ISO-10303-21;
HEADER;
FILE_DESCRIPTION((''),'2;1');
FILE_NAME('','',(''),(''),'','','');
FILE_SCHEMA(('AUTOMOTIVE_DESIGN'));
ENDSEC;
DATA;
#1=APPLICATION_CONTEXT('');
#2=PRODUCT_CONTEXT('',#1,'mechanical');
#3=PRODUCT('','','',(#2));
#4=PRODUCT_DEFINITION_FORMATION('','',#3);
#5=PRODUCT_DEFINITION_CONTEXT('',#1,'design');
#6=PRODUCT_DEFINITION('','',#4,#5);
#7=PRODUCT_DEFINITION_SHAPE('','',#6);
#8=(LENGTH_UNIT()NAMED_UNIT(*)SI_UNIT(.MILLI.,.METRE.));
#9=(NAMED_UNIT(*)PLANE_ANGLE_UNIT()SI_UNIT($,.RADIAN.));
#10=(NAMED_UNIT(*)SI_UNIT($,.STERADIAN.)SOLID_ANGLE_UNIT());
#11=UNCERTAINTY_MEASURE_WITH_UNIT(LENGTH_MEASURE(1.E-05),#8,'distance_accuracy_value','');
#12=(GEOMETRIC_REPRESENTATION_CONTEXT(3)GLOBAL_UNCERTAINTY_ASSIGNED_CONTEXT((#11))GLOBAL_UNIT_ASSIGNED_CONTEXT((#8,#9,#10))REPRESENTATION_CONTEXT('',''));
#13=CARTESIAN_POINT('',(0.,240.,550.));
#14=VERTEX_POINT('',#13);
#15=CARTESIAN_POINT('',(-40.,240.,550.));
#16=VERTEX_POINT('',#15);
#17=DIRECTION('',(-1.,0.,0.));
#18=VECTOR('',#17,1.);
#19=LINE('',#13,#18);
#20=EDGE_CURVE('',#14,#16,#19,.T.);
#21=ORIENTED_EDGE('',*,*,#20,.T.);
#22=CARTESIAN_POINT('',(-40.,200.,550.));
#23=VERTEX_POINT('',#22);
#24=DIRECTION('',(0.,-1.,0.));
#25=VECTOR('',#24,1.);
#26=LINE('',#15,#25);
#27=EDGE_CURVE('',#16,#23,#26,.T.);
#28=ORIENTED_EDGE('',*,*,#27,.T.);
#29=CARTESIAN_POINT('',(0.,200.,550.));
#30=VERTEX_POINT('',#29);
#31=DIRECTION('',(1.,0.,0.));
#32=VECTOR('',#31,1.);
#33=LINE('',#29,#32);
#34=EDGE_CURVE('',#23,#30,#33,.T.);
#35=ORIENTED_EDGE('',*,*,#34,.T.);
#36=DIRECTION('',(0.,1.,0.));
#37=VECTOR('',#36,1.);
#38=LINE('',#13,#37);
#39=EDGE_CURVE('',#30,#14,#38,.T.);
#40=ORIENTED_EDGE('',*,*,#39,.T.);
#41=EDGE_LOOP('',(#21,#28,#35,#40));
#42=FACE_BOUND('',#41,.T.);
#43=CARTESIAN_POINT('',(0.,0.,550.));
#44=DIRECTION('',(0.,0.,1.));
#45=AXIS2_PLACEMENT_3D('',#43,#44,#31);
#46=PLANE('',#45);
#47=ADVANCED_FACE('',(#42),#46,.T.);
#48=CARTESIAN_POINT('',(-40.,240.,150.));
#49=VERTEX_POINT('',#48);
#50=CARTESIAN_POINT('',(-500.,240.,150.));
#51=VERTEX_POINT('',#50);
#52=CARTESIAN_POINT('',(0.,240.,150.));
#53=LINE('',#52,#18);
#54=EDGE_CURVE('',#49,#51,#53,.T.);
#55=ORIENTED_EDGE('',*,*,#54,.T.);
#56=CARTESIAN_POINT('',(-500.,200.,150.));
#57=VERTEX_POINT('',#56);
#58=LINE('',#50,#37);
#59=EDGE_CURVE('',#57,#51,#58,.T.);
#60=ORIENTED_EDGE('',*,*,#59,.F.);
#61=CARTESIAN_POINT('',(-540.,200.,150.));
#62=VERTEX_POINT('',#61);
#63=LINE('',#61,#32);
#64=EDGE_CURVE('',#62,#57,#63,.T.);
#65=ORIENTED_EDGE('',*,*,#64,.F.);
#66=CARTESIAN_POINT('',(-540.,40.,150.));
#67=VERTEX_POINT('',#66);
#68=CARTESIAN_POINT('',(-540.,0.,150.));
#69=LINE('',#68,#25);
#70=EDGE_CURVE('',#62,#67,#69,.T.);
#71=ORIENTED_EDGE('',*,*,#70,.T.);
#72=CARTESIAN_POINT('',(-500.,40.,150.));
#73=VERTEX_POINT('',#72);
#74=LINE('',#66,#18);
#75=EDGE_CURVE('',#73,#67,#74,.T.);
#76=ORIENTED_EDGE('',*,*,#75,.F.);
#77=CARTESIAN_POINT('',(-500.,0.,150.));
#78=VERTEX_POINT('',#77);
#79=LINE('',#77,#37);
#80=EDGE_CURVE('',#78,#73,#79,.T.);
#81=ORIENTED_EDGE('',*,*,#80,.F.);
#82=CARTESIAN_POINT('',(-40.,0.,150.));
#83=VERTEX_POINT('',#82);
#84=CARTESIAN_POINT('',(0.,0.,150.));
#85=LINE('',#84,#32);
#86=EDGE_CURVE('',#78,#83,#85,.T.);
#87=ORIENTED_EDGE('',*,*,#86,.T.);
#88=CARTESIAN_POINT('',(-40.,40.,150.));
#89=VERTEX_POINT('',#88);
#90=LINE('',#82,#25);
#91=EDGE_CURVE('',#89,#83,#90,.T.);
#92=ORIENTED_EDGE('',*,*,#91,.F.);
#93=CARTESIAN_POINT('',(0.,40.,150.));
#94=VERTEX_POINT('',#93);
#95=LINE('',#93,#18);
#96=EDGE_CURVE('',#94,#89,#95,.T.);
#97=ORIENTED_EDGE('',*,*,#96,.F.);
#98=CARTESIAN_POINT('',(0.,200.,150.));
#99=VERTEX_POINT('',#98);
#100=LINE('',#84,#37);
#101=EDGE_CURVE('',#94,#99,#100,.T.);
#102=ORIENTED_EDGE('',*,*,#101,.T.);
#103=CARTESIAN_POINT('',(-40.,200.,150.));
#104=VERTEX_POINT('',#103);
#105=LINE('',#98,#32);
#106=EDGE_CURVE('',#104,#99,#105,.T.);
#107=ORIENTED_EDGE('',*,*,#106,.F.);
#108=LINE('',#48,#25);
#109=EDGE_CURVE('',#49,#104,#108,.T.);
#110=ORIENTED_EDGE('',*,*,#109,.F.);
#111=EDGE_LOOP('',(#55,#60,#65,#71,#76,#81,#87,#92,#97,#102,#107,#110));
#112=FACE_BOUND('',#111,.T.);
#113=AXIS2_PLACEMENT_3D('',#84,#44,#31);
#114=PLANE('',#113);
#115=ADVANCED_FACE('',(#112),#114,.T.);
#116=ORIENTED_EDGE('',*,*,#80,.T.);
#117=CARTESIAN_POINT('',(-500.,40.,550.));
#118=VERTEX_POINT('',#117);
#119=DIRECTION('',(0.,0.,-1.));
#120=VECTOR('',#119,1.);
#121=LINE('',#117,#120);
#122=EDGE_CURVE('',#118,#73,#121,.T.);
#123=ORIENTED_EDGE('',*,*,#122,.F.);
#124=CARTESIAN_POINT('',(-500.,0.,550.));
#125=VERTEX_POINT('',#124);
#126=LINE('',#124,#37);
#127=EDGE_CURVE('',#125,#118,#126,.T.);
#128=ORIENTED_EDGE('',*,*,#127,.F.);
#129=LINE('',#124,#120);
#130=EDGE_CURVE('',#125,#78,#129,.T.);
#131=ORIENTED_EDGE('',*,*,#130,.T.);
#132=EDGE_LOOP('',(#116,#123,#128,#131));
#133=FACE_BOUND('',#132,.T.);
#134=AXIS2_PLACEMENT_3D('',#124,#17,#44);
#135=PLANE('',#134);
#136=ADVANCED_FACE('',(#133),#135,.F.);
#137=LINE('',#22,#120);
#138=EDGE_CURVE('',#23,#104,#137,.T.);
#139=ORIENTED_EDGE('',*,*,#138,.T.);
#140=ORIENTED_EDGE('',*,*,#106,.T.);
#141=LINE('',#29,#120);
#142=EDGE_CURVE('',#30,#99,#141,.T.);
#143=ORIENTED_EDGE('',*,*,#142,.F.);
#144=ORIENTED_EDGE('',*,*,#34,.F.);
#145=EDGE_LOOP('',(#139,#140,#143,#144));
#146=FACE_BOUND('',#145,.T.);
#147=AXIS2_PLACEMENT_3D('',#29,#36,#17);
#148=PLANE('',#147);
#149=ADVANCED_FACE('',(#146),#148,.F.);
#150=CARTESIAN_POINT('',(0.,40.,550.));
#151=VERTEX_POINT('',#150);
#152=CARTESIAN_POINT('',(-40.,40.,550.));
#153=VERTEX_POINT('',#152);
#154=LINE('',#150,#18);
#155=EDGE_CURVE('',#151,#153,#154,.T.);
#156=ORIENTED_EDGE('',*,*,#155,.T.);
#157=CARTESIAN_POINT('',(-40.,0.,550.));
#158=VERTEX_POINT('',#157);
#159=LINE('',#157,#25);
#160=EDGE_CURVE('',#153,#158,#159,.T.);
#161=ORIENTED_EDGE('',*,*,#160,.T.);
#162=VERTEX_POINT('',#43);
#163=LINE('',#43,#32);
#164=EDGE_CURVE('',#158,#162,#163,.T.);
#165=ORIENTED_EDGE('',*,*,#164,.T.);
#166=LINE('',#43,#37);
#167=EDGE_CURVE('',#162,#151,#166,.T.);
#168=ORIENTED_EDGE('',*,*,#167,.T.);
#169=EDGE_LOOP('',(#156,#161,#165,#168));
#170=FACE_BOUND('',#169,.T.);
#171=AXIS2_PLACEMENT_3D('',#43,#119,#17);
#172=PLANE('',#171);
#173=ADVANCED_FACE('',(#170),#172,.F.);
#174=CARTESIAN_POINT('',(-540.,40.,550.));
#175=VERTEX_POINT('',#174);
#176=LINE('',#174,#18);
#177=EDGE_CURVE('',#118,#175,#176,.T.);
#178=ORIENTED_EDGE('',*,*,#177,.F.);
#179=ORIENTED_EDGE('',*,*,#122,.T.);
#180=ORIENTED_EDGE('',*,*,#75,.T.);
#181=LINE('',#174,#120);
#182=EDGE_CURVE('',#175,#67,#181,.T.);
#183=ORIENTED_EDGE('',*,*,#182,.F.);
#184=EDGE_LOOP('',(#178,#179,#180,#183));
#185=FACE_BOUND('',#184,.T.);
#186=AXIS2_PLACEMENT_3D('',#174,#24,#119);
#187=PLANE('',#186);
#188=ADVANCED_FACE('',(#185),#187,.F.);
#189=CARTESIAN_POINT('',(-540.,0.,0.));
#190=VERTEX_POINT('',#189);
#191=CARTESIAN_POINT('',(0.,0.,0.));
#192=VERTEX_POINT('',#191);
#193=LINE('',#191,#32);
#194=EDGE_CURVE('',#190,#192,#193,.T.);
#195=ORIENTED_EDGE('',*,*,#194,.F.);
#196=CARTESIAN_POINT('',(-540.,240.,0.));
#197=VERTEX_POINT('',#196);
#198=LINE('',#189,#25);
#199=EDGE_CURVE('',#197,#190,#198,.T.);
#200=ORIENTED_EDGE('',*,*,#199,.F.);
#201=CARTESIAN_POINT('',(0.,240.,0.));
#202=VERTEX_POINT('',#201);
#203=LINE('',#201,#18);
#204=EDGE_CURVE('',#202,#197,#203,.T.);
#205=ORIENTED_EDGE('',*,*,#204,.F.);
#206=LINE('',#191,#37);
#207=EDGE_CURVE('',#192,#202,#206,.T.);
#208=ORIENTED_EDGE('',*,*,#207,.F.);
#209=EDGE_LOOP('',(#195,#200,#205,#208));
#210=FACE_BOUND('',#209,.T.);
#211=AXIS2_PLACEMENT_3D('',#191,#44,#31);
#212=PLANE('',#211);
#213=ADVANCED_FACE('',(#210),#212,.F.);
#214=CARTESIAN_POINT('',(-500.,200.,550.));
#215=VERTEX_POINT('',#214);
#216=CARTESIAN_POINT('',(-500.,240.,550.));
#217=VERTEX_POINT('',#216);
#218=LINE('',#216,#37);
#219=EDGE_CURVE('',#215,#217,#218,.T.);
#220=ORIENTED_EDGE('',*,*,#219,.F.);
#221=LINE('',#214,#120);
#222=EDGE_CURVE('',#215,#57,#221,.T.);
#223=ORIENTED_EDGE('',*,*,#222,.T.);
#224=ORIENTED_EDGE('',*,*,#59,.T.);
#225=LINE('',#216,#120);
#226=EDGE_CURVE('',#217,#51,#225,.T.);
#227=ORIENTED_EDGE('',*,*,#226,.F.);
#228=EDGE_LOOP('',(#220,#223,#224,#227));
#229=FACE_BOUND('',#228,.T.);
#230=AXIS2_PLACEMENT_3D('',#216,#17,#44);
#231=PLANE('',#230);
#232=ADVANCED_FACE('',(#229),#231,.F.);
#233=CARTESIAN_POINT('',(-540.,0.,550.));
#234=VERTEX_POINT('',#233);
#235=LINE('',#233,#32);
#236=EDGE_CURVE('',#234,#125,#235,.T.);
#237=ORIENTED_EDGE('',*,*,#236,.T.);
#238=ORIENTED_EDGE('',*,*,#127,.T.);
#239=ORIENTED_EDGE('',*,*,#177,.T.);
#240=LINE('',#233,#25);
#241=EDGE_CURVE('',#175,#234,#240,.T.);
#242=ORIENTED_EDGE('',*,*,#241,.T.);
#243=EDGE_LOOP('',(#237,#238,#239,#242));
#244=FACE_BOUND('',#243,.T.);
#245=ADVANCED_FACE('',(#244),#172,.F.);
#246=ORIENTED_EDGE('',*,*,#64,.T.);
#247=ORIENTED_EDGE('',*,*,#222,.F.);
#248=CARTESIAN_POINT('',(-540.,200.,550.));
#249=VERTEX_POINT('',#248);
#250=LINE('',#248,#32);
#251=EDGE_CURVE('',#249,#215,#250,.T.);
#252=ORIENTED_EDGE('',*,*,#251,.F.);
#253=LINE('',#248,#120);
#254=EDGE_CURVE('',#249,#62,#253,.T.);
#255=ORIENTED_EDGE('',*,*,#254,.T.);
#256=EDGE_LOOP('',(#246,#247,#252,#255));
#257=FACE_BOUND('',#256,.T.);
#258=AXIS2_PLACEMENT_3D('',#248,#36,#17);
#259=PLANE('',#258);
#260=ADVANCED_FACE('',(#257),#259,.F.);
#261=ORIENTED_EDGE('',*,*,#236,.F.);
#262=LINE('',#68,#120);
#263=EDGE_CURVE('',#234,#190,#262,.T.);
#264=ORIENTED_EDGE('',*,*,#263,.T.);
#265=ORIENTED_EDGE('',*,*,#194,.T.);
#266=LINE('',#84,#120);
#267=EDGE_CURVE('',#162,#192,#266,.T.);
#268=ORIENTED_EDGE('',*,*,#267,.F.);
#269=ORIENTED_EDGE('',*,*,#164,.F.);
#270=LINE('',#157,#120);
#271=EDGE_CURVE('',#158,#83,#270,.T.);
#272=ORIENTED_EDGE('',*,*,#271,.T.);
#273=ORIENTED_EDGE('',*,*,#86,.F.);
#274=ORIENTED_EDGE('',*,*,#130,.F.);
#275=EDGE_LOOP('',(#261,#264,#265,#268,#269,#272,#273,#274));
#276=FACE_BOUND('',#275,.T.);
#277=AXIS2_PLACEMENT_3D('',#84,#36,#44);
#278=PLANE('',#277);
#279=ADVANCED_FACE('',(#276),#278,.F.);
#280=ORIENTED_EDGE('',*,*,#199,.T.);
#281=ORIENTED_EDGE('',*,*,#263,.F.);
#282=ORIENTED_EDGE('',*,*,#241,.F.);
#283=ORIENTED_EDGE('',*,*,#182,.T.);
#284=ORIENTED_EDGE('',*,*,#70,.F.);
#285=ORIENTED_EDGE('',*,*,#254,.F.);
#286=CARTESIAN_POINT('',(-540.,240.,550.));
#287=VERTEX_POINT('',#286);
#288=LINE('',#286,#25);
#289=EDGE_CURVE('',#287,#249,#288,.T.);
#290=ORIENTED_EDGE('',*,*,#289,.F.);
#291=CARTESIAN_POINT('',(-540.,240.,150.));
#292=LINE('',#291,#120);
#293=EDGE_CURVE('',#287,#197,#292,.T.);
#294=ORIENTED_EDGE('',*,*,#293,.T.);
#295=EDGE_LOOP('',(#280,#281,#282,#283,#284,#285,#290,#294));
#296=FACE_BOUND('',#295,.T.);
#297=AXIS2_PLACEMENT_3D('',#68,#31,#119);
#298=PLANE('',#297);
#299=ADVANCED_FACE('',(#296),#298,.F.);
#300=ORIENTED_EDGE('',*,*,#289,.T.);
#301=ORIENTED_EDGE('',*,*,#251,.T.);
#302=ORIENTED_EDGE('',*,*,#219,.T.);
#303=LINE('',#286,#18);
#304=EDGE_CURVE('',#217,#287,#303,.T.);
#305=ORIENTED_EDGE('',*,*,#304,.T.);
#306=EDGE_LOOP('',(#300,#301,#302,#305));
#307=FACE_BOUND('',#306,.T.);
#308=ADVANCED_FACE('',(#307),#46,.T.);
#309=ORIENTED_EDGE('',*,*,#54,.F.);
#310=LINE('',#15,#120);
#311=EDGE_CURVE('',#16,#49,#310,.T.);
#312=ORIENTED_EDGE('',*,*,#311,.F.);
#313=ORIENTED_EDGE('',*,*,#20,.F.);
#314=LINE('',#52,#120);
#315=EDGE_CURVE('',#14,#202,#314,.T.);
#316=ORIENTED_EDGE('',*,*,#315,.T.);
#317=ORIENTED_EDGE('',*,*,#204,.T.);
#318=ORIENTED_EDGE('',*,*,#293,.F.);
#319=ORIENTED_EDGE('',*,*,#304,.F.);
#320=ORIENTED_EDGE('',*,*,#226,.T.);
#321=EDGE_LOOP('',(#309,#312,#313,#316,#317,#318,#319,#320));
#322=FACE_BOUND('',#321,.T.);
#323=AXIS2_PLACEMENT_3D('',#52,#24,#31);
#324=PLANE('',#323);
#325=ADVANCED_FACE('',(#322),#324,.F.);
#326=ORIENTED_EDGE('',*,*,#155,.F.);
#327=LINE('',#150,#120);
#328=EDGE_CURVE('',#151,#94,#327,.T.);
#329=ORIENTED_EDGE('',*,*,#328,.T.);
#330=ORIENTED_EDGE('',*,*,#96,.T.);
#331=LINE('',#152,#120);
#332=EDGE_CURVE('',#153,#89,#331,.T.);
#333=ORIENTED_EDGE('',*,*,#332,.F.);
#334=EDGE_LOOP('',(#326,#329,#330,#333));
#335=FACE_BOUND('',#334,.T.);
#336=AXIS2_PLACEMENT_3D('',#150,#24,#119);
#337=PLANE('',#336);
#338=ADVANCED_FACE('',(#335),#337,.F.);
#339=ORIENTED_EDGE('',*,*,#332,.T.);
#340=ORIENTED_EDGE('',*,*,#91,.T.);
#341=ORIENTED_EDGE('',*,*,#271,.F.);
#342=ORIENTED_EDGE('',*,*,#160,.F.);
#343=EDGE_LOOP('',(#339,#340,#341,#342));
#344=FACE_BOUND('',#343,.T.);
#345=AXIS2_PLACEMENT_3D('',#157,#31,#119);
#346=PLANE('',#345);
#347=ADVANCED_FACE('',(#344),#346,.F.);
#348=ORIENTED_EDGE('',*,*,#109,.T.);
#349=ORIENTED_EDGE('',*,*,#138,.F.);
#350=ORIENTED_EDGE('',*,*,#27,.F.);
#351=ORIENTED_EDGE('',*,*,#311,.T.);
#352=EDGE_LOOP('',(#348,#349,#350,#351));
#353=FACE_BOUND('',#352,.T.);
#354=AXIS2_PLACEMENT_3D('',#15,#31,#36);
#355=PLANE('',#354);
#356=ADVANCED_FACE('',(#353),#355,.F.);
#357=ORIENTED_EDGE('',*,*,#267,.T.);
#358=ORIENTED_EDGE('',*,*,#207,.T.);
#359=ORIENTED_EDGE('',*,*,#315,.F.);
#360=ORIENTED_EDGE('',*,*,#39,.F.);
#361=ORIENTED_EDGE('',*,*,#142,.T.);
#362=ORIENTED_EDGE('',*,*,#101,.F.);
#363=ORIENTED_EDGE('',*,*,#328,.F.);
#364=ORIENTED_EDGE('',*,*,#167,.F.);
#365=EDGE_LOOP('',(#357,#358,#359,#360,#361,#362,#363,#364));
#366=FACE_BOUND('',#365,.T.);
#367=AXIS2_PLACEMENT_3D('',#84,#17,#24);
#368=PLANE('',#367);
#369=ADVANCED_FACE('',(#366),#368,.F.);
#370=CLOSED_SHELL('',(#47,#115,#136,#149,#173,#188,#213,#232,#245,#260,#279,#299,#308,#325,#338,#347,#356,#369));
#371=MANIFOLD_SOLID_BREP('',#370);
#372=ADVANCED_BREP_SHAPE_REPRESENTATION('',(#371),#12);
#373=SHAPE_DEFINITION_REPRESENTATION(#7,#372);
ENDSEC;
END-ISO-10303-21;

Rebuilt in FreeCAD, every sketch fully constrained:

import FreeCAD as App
import Part
import Sketcher
Q = App.Units.Quantity


def add_polygon(sketch, points):
    """Adds a closed chain of lines whose ends are joined by coincident constraints."""
    first, n = sketch.GeometryCount, len(points)
    for a, b in zip(points, points[1:] + points[:1]):
        sketch.addGeometry(Part.LineSegment(App.Vector(*a, 0), App.Vector(*b, 0)), False)
    for i in range(n):
        sketch.addConstraint(Sketcher.Constraint("Coincident", first + i, 2, first + (i + 1) % n, 1))

doc = App.newDocument("Part")
body = doc.addObject("PartDesign::Body", "Body")

sketch1 = doc.addObject("Sketcher::SketchObject", "Sketch")
body.addObject(sketch1)
sketch1.AttachmentSupport = (doc.XY_Plane, [""])
sketch1.MapMode = "FlatFace"
add_polygon(sketch1, [(-540, 240), (-540, 0), (0, 0), (0, 240)])
sketch1.addConstraint(Sketcher.Constraint("Vertical", 0))
sketch1.addConstraint(Sketcher.Constraint("Horizontal", 1))
sketch1.addConstraint(Sketcher.Constraint("Vertical", 2))
sketch1.addConstraint(Sketcher.Constraint("Horizontal", 3))
sketch1.addConstraint(Sketcher.Constraint("Coincident", 1, 2, -1, 1))
sketch1.addConstraint(Sketcher.Constraint("DistanceX", 1, 1, 1, 2, Q("540 mm")))
sketch1.addConstraint(Sketcher.Constraint("DistanceY", 0, 2, 0, 1, Q("240 mm")))
pad1 = doc.addObject("PartDesign::Pad", "Pad")
body.addObject(pad1)
pad1.Profile = sketch1
pad1.Length = 150

sketch2 = doc.addObject("Sketcher::SketchObject", "Sketch001")
body.addObject(sketch2)
sketch2.AttachmentSupport = (doc.XY_Plane, [""])
sketch2.MapMode = "FlatFace"
sketch2.AttachmentOffset = App.Placement(App.Vector(0, 0, 150), App.Rotation())
add_polygon(sketch2, [(-540, 240), (-540, 200), (-500, 200), (-500, 240)])
add_polygon(sketch2, [(-540, 40), (-540, 0), (-500, 0), (-500, 40)])
add_polygon(sketch2, [(-40, 40), (-40, 0), (0, 0), (0, 40)])
add_polygon(sketch2, [(-40, 240), (-40, 200), (0, 200), (0, 240)])
sketch2.addConstraint(Sketcher.Constraint("Vertical", 0))
sketch2.addConstraint(Sketcher.Constraint("Horizontal", 1))
sketch2.addConstraint(Sketcher.Constraint("Vertical", 2))
sketch2.addConstraint(Sketcher.Constraint("Horizontal", 3))
sketch2.addConstraint(Sketcher.Constraint("Vertical", 4))
sketch2.addConstraint(Sketcher.Constraint("Horizontal", 5))
sketch2.addConstraint(Sketcher.Constraint("Vertical", 6))
sketch2.addConstraint(Sketcher.Constraint("Horizontal", 7))
sketch2.addConstraint(Sketcher.Constraint("Vertical", 8))
sketch2.addConstraint(Sketcher.Constraint("Horizontal", 9))
sketch2.addConstraint(Sketcher.Constraint("Vertical", 10))
sketch2.addConstraint(Sketcher.Constraint("Horizontal", 11))
sketch2.addConstraint(Sketcher.Constraint("Vertical", 12))
sketch2.addConstraint(Sketcher.Constraint("Horizontal", 13))
sketch2.addConstraint(Sketcher.Constraint("Vertical", 14))
sketch2.addConstraint(Sketcher.Constraint("Horizontal", 15))
sketch2.addConstraint(Sketcher.Constraint("Coincident", 9, 2, -1, 1))
sketch2.addConstraint(Sketcher.Constraint("PointOnObject", 4, 2, -1))
sketch2.addConstraint(Sketcher.Constraint("PointOnObject", 13, 2, -2))
sketch2.addConstraint(Sketcher.Constraint("Horizontal", 7, 2, 10, 2))
sketch2.addConstraint(Sketcher.Constraint("Horizontal", 1, 2, 12, 2))
sketch2.addConstraint(Sketcher.Constraint("Horizontal", 3, 2, 14, 2))
sketch2.addConstraint(Sketcher.Constraint("Vertical", 3, 2, 4, 2))
sketch2.addConstraint(Sketcher.Constraint("Vertical", 2, 2, 5, 2))
sketch2.addConstraint(Sketcher.Constraint("Vertical", 11, 2, 12, 2))
sketch2.addConstraint(Sketcher.Constraint("Equal", 7, 9))
sketch2.addConstraint(Sketcher.Constraint("Equal", 15, 0))
sketch2.addConstraint(Sketcher.Constraint("Equal", 2, 4))
sketch2.addConstraint(Sketcher.Constraint("DistanceX", 1, 1, 1, 2, Q("40 mm")))
sketch2.addConstraint(Sketcher.Constraint("DistanceX", 0, 2, -1, 1, Q("540 mm")))
sketch2.addConstraint(Sketcher.Constraint("DistanceY", -1, 1, 0, 2, Q("200 mm")))
pad2 = doc.addObject("PartDesign::Pad", "Pad001")
body.addObject(pad2)
pad2.Profile = sketch2
pad2.Length = 400

doc.recompute()
